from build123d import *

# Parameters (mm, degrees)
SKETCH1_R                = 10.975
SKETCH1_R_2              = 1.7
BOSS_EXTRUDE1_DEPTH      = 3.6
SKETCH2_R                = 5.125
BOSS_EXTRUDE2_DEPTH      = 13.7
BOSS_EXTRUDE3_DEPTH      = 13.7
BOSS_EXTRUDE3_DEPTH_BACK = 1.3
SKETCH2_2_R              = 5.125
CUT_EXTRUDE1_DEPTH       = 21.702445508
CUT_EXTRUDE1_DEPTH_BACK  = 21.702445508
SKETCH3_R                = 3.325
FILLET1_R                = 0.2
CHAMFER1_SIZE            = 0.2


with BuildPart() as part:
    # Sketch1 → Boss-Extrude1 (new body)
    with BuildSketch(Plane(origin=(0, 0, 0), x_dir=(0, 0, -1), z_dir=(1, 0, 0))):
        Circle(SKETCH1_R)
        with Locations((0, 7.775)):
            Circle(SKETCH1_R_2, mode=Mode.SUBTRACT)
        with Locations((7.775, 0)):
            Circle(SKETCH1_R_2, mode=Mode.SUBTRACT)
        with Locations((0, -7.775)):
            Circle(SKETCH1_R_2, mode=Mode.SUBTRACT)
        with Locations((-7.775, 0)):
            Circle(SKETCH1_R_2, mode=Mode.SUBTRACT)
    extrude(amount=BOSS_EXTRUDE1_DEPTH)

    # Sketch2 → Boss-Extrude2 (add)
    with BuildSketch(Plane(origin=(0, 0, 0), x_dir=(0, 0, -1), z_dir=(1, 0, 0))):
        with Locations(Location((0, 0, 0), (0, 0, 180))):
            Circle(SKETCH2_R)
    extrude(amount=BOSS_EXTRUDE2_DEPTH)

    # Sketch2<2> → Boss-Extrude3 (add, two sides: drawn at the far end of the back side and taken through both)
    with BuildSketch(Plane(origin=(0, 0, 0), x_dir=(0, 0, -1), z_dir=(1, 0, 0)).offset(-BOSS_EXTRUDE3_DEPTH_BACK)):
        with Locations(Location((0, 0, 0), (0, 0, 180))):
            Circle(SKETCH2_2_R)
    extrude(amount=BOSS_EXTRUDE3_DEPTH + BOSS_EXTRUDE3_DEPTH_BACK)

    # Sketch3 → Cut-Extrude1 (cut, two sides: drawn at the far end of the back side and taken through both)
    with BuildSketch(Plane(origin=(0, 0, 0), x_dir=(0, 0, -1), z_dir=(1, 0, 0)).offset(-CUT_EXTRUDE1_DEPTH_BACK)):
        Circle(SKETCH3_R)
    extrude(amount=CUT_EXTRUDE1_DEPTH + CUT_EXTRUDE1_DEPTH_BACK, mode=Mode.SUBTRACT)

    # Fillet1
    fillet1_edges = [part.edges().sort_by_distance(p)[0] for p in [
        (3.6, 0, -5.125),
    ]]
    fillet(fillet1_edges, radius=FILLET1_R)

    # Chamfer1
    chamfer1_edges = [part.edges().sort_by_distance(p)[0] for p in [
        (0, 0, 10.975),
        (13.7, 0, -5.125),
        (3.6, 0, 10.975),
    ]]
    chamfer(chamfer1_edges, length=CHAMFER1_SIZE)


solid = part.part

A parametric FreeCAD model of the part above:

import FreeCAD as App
import Part
import Sketcher
from FreeCAD import Vector
Q = App.Units.Quantity


def edges_at(feature, points):
    """Names of the edges that pass closest to the given points."""
    edges = feature.Shape.Edges
    near = lambda p: min(range(len(edges)), key=lambda i: edges[i].distToShape(Part.Vertex(*p))[0])
    return sorted({f"Edge{near(p) + 1}" for p in points})

doc = App.newDocument("Part")
params = doc.addObject("Spreadsheet::Sheet", "Params")
for row, (alias, value) in enumerate([
    ("sketch1_diameter", "3.4 mm"),
    ("sketch1_diameter2", "21.95 mm"),
    ("pad1_length", "3.6 mm"),
    ("sketch2_diameter", "10.25 mm"),
    ("pad2_length", "13.7 mm"),
    ("sketch3_diameter", "10.25 mm"),
    ("pad3_length", "13.7 mm"),
    ("pad3_length2", "1.3 mm"),
    ("sketch4_diameter", "6.65 mm"),
    ("fillet_radius", "0.2 mm"),
    ("chamfer_size", "0.2 mm"),
], start=1):
    params.set(f"A{row}", alias)
    params.set(f"B{row}", "=" + value)
    params.setAlias(f"B{row}", alias)

body = doc.addObject("PartDesign::Body", "Body")

sketch1 = doc.addObject("Sketcher::SketchObject", "Sketch")
body.addObject(sketch1)
sketch1.AttachmentSupport = (doc.YZ_Plane, [""])
sketch1.MapMode = "FlatFace"
sketch1.addGeometry([
    Part.Circle(Vector(0, 0, 0), Vector(0, 0, 1), 11),
    Part.Circle(Vector(-7.8, 0, 0), Vector(0, 0, 1), 1.7),
    Part.Circle(Vector(0, 7.8, 0), Vector(0, 0, 1), 1.7),
    Part.Circle(Vector(0, -7.8, 0), Vector(0, 0, 1), 1.7),
    Part.Circle(Vector(7.8, 0, 0), Vector(0, 0, 1), 1.7),
], False)
sketch1.addConstraint([
    Sketcher.Constraint("Coincident", 0, 3, -1, 1),
    Sketcher.Constraint("Equal", 1, 2),
    Sketcher.Constraint("Equal", 2, 3),
    Sketcher.Constraint("Equal", 3, 4),
    Sketcher.Constraint("Symmetric", 2, 3, 3, 3, -1, 1),
    Sketcher.Constraint("Symmetric", 1, 3, 4, 3, -1, 1),
    Sketcher.Constraint("PointOnObject", 1, 3, -1),
    Sketcher.Constraint("PointOnObject", 2, 3, -2),
    Sketcher.Constraint("Diameter", 1, Q("3.4 mm")),
    Sketcher.Constraint("Diameter", 0, Q("21.95 mm")),
    Sketcher.Constraint("DistanceY", 3, 3, 2, 3, Q("15.55 mm")),
    Sketcher.Constraint("DistanceX", 1, 3, 4, 3, Q("15.55 mm")),
])
sketch1.setExpression("Constraints[8]", "Params.sketch1_diameter")
sketch1.setExpression("Constraints[9]", "Params.sketch1_diameter2")
pad1 = doc.addObject("PartDesign::Pad", "Pad")
body.addObject(pad1)
pad1.Profile = sketch1
pad1.setExpression("Length", "Params.pad1_length")

sketch2 = doc.addObject("Sketcher::SketchObject", "Sketch001")
body.addObject(sketch2)
sketch2.AttachmentSupport = (doc.YZ_Plane, [""])
sketch2.MapMode = "FlatFace"
sketch2.addGeometry(Part.Circle(Vector(0, 0, 0), Vector(0, 0, 1), 5), False)
sketch2.addConstraint([
    Sketcher.Constraint("Coincident", 0, 3, -1, 1),
    Sketcher.Constraint("Diameter", 0, Q("10.25 mm")),
])
sketch2.setExpression("Constraints[1]", "Params.sketch2_diameter")
pad2 = doc.addObject("PartDesign::Pad", "Pad001")
body.addObject(pad2)
pad2.Profile = sketch2
pad2.setExpression("Length", "Params.pad2_length")

sketch3 = doc.addObject("Sketcher::SketchObject", "Sketch002")
body.addObject(sketch3)
sketch3.AttachmentSupport = (doc.YZ_Plane, [""])
sketch3.MapMode = "FlatFace"
sketch3.addGeometry(Part.Circle(Vector(0, 0, 0), Vector(0, 0, 1), 5), False)
sketch3.addConstraint([
    Sketcher.Constraint("Coincident", 0, 3, -1, 1),
    Sketcher.Constraint("Diameter", 0, Q("10.25 mm")),
])
sketch3.setExpression("Constraints[1]", "Params.sketch3_diameter")
pad3 = doc.addObject("PartDesign::Pad", "Pad002")
body.addObject(pad3)
pad3.Profile = sketch3
pad3.Type = "TwoLengths"
pad3.setExpression("Length", "Params.pad3_length")
pad3.setExpression("Length2", "Params.pad3_length2")

sketch4 = doc.addObject("Sketcher::SketchObject", "Sketch003")
body.addObject(sketch4)
sketch4.AttachmentSupport = (doc.YZ_Plane, [""])
sketch4.MapMode = "FlatFace"
sketch4.addGeometry(Part.Circle(Vector(0, 0, 0), Vector(0, 0, 1), 3.3), False)
sketch4.addConstraint([
    Sketcher.Constraint("Coincident", 0, 3, -1, 1),
    Sketcher.Constraint("Diameter", 0, Q("6.65 mm")),
])
sketch4.setExpression("Constraints[1]", "Params.sketch4_diameter")
pocket1 = doc.addObject("PartDesign::Pocket", "Pocket")
body.addObject(pocket1)
pocket1.Profile = sketch4
pocket1.Type = "ThroughAll"
pocket1.Midplane = True
doc.recompute()

fillet = doc.addObject("PartDesign::Fillet", "Fillet")
body.addObject(fillet)
fillet.Base = (pocket1, edges_at(pocket1, [(3.6, 0, -5.125)]))
fillet.setExpression("Radius", "Params.fillet_radius")
doc.recompute()

chamfer = doc.addObject("PartDesign::Chamfer", "Chamfer")
body.addObject(chamfer)
chamfer.Base = (fillet, edges_at(fillet, [(0, 0, 10.975), (13.7, 0, -5.125), (3.6, 0, 10.975)]))
chamfer.setExpression("Size", "Params.chamfer_size")

doc.recompute()
